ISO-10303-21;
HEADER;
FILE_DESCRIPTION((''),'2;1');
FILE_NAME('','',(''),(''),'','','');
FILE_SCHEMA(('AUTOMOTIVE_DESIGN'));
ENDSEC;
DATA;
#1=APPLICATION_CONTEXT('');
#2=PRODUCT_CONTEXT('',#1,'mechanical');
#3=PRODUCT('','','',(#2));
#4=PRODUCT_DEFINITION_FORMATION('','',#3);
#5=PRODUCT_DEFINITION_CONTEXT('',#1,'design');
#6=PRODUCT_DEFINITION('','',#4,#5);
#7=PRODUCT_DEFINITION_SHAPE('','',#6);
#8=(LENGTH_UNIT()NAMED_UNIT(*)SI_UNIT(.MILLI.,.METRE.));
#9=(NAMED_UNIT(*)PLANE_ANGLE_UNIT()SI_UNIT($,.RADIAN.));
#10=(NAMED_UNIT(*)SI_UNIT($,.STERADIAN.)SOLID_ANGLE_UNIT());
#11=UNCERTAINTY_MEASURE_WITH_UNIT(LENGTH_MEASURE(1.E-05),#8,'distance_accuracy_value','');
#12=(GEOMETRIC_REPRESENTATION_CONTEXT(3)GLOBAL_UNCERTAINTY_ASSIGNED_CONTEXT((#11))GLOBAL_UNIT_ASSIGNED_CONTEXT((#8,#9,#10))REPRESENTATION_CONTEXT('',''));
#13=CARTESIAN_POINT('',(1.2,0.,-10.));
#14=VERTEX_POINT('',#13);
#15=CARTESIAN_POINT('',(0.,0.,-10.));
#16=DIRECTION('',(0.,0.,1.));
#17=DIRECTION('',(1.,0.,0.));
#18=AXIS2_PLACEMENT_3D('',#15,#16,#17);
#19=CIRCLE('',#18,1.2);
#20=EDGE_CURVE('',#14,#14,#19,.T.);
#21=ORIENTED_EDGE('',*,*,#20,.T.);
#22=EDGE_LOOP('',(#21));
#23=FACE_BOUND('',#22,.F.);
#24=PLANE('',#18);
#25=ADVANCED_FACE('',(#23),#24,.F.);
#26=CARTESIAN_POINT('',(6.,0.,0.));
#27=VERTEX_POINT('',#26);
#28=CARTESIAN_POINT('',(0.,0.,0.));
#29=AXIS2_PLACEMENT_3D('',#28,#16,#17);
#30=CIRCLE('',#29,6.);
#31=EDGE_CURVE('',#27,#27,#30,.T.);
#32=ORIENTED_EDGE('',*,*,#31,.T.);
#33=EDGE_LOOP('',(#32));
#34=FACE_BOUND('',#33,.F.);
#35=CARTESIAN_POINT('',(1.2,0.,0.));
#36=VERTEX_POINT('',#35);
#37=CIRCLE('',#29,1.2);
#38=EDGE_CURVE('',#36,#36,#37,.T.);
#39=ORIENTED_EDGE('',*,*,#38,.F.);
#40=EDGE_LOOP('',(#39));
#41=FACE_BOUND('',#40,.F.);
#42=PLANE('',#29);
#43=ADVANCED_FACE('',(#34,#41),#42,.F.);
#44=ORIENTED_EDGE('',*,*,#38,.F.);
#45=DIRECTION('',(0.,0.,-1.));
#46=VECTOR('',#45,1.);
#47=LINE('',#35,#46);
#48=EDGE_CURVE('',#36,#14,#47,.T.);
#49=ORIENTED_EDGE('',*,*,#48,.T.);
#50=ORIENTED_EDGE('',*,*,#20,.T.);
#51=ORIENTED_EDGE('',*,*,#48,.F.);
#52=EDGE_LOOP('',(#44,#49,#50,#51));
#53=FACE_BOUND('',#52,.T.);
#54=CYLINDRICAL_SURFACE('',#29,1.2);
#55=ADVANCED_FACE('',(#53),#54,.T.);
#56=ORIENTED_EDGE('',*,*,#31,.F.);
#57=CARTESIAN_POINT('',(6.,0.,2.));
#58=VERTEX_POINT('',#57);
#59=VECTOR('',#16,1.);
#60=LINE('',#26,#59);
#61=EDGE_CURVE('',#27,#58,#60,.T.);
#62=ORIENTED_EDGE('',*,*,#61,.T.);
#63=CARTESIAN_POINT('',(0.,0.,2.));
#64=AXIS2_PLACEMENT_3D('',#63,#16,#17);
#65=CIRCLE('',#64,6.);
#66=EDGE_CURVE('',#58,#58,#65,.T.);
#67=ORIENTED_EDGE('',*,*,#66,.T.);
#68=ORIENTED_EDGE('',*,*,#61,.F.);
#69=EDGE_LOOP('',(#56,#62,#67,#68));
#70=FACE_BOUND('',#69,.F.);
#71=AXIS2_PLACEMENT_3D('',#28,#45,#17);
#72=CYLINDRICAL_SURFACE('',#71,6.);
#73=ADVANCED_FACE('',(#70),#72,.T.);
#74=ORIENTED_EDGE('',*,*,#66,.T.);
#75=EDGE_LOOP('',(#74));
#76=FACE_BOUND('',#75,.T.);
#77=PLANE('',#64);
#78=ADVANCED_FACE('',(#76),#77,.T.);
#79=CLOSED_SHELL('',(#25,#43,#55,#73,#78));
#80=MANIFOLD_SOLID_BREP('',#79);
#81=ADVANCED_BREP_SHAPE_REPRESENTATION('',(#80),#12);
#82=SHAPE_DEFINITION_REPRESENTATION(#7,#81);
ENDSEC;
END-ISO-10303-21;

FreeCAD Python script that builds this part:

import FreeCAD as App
import Part
import Sketcher

doc = App.newDocument("Part")
body = doc.addObject("PartDesign::Body", "Body")

# Sketch on XY plane
sketch1 = body.newObject("Sketcher::SketchObject", "Sketch")
sketch1.AttachmentSupport = (doc.getObject("XY_Plane"), [""])
sketch1.MapMode = "FlatFace"
sketch1.addGeometry(Part.Circle(App.Vector(0, 0, 0), App.Vector(0, 0, 1), 6), False)
sketch1.addConstraint([
    Sketcher.Constraint("Coincident", 0, 3, -1, 1),
    Sketcher.Constraint("Diameter", 0, 12.0),
])
pad1 = body.newObject("PartDesign::Pad", "Pad")
pad1.Profile = sketch1
pad1.Length = 2

# Sketch on XY plane
sketch2 = body.newObject("Sketcher::SketchObject", "Sketch001")
sketch2.AttachmentSupport = (doc.getObject("XY_Plane"), [""])
sketch2.MapMode = "FlatFace"
sketch2.addGeometry(Part.Circle(App.Vector(0, 0, 0), App.Vector(0, 0, 1), 1.2), False)
sketch2.addConstraint([
    Sketcher.Constraint("Coincident", 0, 3, -1, 1),
    Sketcher.Constraint("Diameter", 0, 2.4),
])
pad2 = body.newObject("PartDesign::Pad", "Pad001")
pad2.Profile = sketch2
pad2.Length = 10
pad2.Reversed = True

doc.recompute()
